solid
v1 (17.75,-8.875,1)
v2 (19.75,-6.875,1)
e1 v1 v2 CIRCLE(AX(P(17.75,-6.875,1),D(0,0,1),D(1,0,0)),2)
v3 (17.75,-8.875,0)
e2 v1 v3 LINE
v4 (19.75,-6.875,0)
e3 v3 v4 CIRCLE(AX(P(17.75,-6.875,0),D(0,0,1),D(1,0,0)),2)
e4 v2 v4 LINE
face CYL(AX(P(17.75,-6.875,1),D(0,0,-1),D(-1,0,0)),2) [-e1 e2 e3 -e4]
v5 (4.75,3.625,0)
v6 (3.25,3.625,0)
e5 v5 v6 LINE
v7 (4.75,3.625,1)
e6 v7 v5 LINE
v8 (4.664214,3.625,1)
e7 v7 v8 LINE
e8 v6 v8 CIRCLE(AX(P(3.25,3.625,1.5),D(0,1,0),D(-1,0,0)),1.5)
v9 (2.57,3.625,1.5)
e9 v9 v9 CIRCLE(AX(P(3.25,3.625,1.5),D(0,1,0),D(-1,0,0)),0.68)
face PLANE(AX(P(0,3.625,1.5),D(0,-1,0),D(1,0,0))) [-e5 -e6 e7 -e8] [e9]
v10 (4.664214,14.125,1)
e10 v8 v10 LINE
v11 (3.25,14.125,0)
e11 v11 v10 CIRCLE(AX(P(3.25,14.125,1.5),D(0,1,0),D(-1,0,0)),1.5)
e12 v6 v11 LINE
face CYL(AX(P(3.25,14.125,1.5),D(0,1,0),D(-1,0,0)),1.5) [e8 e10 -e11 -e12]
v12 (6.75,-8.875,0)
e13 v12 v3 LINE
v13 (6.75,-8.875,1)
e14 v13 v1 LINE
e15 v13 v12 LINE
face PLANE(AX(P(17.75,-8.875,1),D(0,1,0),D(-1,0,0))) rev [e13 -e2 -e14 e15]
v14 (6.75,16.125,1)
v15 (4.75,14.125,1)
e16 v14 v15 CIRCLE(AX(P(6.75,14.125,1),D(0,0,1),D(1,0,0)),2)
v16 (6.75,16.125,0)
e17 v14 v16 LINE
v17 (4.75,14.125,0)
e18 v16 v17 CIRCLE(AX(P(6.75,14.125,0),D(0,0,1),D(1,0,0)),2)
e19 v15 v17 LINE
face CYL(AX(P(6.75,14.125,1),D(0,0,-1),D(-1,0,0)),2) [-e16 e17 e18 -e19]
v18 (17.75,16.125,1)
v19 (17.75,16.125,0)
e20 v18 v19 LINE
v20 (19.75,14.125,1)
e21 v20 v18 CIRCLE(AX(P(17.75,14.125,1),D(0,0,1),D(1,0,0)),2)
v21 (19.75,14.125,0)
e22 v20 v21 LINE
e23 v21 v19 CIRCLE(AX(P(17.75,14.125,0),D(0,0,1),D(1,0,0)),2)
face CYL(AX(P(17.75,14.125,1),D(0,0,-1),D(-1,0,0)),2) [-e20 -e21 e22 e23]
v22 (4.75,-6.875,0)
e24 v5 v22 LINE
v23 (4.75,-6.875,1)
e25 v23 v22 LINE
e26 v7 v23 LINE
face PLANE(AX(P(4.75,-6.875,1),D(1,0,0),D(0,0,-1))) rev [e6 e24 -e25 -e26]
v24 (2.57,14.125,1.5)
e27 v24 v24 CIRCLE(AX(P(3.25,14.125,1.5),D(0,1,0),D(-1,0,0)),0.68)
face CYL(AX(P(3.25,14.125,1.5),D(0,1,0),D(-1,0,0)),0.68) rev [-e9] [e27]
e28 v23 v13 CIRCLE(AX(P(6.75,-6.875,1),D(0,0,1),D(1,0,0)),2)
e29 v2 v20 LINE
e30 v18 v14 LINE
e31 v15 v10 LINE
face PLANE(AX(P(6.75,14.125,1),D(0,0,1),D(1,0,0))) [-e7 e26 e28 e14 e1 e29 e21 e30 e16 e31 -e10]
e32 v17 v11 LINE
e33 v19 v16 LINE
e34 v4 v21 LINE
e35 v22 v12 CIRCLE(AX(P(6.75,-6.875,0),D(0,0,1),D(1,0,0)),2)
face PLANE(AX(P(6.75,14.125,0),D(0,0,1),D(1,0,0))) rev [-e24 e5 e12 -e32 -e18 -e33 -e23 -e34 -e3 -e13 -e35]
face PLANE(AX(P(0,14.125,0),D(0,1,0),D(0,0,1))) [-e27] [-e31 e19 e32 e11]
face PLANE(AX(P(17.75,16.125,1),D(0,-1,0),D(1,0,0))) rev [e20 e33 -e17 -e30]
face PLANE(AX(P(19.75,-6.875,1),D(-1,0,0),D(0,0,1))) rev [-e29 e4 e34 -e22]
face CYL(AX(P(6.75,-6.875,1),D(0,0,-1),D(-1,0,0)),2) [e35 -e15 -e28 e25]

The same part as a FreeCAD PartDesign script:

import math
import FreeCAD as App
import Part
import Sketcher

V = App.Vector
Q = App.Units.Quantity

doc = App.newDocument("Part")
body = doc.addObject("PartDesign::Body", "Body")

# Sketch on XY plane
sketch1 = body.newObject("Sketcher::SketchObject", "Sketch")
sketch1.AttachmentSupport = (doc.getObject("XY_Plane"), [""])
sketch1.MapMode = "FlatFace"
sketch1.addGeometry([
    Part.LineSegment(V(6.75, -8.875, 0), V(17.75, -8.875, 0)),  # 0
    Part.ArcOfCircle(Part.Circle(V(17.75, -6.875, 0), V(0, 0, 1), 2), math.radians(-90), math.radians(0)),  # 1
    Part.LineSegment(V(19.75, -6.875, 0), V(19.75, 14.125, 0)),  # 2
    Part.ArcOfCircle(Part.Circle(V(17.75, 14.125, 0), V(0, 0, 1), 2), math.radians(0), math.radians(90)),  # 3
    Part.LineSegment(V(17.75, 16.125, 0), V(6.75, 16.125, 0)),  # 4
    Part.ArcOfCircle(Part.Circle(V(6.75, 14.125, 0), V(0, 0, 1), 2), math.radians(90), math.radians(180)),  # 5
    Part.LineSegment(V(4.75, 14.125, 0), V(4.75, -6.875, 0)),  # 6
    Part.ArcOfCircle(Part.Circle(V(6.75, -6.875, 0), V(0, 0, 1), 2), math.radians(-180), math.radians(-90)),  # 7
], False)
sketch1.addConstraint([
    Sketcher.Constraint("Tangent", 0, 2, 1, 1),
    Sketcher.Constraint("Tangent", 1, 2, 2, 1),
    Sketcher.Constraint("Tangent", 2, 2, 3, 1),
    Sketcher.Constraint("Tangent", 3, 2, 4, 1),
    Sketcher.Constraint("Tangent", 4, 2, 5, 1),
    Sketcher.Constraint("Tangent", 5, 2, 6, 1),
    Sketcher.Constraint("Tangent", 6, 2, 7, 1),
    Sketcher.Constraint("Tangent", 7, 2, 0, 1),
    Sketcher.Constraint("Horizontal", 0),
    Sketcher.Constraint("Vertical", 2),
    Sketcher.Constraint("Horizontal", 4),
    Sketcher.Constraint("Vertical", 6),
    Sketcher.Constraint("Equal", 1, 3),
    Sketcher.Constraint("Equal", 3, 5),
    Sketcher.Constraint("Equal", 5, 7),
    Sketcher.Constraint("Radius", 1, Q("2 mm")),
    Sketcher.Constraint("DistanceX", 0, 1, 0, 2, Q("11 mm")),
    Sketcher.Constraint("DistanceY", 2, 1, 2, 2, Q("21 mm")),
    Sketcher.Constraint("DistanceX", -1, 1, 1, 3, Q("17.75 mm")),
    Sketcher.Constraint("DistanceY", 1, 3, -1, 1, Q("6.875 mm")),
])
pad1 = body.newObject("PartDesign::Pad", "Pad")
pad1.Profile = sketch1
pad1.Length = 1
body2 = doc.addObject("PartDesign::Body", "Body001")

# Sketch on XY plane
sketch2 = body2.newObject("Sketcher::SketchObject", "Sketch001")
sketch2.AttachmentSupport = (doc.getObject("XY_Plane001"), [""])
sketch2.MapMode = "FlatFace"
sketch2.AttachmentOffset = App.Placement(V(0, 0, 1.5), App.Rotation())
sketch2.addGeometry([
    Part.LineSegment(V(3.93, 14.125, 0), V(3.93, 3.625, 0)),
    Part.LineSegment(V(3.93, 3.625, 0), V(4.75, 3.625, 0)),
    Part.LineSegment(V(4.75, 3.625, 0), V(4.75, 14.125, 0)),
    Part.LineSegment(V(4.75, 14.125, 0), V(3.93, 14.125, 0)),
], False)
sketch2.addGeometry(Part.LineSegment(V(3.25, 14.125, 0), V(3.25, 3.625, 0)), True)  # axis
sketch2.addConstraint([
    Sketcher.Constraint("Coincident", 0, 2, 1, 1),
    Sketcher.Constraint("Coincident", 1, 2, 2, 1),
    Sketcher.Constraint("Coincident", 2, 2, 3, 1),
    Sketcher.Constraint("Coincident", 3, 2, 0, 1),
    Sketcher.Constraint("Vertical", 0),
    Sketcher.Constraint("Horizontal", 1),
    Sketcher.Constraint("Vertical", 2),
    Sketcher.Constraint("Horizontal", 3),
    Sketcher.Constraint("Vertical", 4),
    Sketcher.Constraint("Horizontal", 3, 2, 4, 1),
    Sketcher.Constraint("Horizontal", 1, 2, 4, 2),
    Sketcher.Constraint("DistanceY", 0, 2, 0, 1, Q("10.5 mm")),
    Sketcher.Constraint("DistanceX", 1, 1, 1, 2, Q("0.82 mm")),
    Sketcher.Constraint("DistanceX", 4, 1, 2, 2, Q("1.5 mm")),
    Sketcher.Constraint("DistanceX", -1, 1, 0, 2, Q("3.93 mm")),
    Sketcher.Constraint("DistanceY", -1, 1, 0, 2, Q("3.625 mm")),
])
revolution = body2.newObject("PartDesign::Revolution", "Revolution")
revolution.Profile = sketch2
revolution.ReferenceAxis = (sketch2, ["Axis0"])
revolution.Angle = 360
body.AllowCompound = True
doc.recompute()

boolean = body.newObject("PartDesign::Boolean", "Boolean")
boolean.Type = "Fuse"
boolean.addObjects([body2])

# Sketch on XZ plane
sketch3 = body.newObject("Sketcher::SketchObject", "Sketch002")
sketch3.AttachmentSupport = (doc.getObject("XZ_Plane"), [""])
sketch3.MapMode = "FlatFace"
sketch3.AttachmentOffset = App.Placement(V(0, 0, -14.125), App.Rotation())
sketch3.addGeometry([
    Part.LineSegment(V(4.75, 1, 0), V(4.75, 0, 0)),  # 0
    Part.LineSegment(V(4.75, 0, 0), V(3.25, 0, 0)),  # 1
    Part.ArcOfCircle(Part.Circle(V(3.25, 1.5, 0), V(0, 0, 1), 1.5), math.radians(-90), math.radians(-26.957749)),  # 2
    Part.ArcOfCircle(Part.Circle(V(3.25, 1.5, 0), V(0, 0, 1), 1.5), math.radians(-26.95775), math.radians(-19.47122)),  # 3
    Part.LineSegment(V(4.664214, 1, 0), V(4.75, 1, 0)),  # 4
], False)
sketch3.addConstraint([
    Sketcher.Constraint("Coincident", 0, 2, 1, 1),
    Sketcher.Constraint("Tangent", 1, 2, 2, 1),
    Sketcher.Constraint("Tangent", 2, 2, 3, 1),
    Sketcher.Constraint("Coincident", 3, 2, 4, 1),
    Sketcher.Constraint("Coincident", 4, 2, 0, 1),
    Sketcher.Constraint("Vertical", 0),
    Sketcher.Constraint("Horizontal", 1),
    Sketcher.Constraint("Horizontal", 4),
    Sketcher.Constraint("Equal", 2, 3),
    Sketcher.Constraint("PointOnObject", 0, 2, -1),
    Sketcher.Constraint("Radius", 2, Q("1.5 mm")),
    Sketcher.Constraint("DistanceY", 0, 2, 0, 1, Q("1 mm")),
    Sketcher.Constraint("DistanceX", 1, 2, 1, 1, Q("1.5 mm")),
    Sketcher.Constraint("DistanceX", -1, 1, 2, 3, Q("3.25 mm")),
    Sketcher.Constraint("DistanceY", -1, 1, 2, 2, Q("0.82 mm")),
])
pad2 = body.newObject("PartDesign::Pad", "Pad001")
pad2.Profile = sketch3
pad2.Length = 10.5

doc.recompute()
